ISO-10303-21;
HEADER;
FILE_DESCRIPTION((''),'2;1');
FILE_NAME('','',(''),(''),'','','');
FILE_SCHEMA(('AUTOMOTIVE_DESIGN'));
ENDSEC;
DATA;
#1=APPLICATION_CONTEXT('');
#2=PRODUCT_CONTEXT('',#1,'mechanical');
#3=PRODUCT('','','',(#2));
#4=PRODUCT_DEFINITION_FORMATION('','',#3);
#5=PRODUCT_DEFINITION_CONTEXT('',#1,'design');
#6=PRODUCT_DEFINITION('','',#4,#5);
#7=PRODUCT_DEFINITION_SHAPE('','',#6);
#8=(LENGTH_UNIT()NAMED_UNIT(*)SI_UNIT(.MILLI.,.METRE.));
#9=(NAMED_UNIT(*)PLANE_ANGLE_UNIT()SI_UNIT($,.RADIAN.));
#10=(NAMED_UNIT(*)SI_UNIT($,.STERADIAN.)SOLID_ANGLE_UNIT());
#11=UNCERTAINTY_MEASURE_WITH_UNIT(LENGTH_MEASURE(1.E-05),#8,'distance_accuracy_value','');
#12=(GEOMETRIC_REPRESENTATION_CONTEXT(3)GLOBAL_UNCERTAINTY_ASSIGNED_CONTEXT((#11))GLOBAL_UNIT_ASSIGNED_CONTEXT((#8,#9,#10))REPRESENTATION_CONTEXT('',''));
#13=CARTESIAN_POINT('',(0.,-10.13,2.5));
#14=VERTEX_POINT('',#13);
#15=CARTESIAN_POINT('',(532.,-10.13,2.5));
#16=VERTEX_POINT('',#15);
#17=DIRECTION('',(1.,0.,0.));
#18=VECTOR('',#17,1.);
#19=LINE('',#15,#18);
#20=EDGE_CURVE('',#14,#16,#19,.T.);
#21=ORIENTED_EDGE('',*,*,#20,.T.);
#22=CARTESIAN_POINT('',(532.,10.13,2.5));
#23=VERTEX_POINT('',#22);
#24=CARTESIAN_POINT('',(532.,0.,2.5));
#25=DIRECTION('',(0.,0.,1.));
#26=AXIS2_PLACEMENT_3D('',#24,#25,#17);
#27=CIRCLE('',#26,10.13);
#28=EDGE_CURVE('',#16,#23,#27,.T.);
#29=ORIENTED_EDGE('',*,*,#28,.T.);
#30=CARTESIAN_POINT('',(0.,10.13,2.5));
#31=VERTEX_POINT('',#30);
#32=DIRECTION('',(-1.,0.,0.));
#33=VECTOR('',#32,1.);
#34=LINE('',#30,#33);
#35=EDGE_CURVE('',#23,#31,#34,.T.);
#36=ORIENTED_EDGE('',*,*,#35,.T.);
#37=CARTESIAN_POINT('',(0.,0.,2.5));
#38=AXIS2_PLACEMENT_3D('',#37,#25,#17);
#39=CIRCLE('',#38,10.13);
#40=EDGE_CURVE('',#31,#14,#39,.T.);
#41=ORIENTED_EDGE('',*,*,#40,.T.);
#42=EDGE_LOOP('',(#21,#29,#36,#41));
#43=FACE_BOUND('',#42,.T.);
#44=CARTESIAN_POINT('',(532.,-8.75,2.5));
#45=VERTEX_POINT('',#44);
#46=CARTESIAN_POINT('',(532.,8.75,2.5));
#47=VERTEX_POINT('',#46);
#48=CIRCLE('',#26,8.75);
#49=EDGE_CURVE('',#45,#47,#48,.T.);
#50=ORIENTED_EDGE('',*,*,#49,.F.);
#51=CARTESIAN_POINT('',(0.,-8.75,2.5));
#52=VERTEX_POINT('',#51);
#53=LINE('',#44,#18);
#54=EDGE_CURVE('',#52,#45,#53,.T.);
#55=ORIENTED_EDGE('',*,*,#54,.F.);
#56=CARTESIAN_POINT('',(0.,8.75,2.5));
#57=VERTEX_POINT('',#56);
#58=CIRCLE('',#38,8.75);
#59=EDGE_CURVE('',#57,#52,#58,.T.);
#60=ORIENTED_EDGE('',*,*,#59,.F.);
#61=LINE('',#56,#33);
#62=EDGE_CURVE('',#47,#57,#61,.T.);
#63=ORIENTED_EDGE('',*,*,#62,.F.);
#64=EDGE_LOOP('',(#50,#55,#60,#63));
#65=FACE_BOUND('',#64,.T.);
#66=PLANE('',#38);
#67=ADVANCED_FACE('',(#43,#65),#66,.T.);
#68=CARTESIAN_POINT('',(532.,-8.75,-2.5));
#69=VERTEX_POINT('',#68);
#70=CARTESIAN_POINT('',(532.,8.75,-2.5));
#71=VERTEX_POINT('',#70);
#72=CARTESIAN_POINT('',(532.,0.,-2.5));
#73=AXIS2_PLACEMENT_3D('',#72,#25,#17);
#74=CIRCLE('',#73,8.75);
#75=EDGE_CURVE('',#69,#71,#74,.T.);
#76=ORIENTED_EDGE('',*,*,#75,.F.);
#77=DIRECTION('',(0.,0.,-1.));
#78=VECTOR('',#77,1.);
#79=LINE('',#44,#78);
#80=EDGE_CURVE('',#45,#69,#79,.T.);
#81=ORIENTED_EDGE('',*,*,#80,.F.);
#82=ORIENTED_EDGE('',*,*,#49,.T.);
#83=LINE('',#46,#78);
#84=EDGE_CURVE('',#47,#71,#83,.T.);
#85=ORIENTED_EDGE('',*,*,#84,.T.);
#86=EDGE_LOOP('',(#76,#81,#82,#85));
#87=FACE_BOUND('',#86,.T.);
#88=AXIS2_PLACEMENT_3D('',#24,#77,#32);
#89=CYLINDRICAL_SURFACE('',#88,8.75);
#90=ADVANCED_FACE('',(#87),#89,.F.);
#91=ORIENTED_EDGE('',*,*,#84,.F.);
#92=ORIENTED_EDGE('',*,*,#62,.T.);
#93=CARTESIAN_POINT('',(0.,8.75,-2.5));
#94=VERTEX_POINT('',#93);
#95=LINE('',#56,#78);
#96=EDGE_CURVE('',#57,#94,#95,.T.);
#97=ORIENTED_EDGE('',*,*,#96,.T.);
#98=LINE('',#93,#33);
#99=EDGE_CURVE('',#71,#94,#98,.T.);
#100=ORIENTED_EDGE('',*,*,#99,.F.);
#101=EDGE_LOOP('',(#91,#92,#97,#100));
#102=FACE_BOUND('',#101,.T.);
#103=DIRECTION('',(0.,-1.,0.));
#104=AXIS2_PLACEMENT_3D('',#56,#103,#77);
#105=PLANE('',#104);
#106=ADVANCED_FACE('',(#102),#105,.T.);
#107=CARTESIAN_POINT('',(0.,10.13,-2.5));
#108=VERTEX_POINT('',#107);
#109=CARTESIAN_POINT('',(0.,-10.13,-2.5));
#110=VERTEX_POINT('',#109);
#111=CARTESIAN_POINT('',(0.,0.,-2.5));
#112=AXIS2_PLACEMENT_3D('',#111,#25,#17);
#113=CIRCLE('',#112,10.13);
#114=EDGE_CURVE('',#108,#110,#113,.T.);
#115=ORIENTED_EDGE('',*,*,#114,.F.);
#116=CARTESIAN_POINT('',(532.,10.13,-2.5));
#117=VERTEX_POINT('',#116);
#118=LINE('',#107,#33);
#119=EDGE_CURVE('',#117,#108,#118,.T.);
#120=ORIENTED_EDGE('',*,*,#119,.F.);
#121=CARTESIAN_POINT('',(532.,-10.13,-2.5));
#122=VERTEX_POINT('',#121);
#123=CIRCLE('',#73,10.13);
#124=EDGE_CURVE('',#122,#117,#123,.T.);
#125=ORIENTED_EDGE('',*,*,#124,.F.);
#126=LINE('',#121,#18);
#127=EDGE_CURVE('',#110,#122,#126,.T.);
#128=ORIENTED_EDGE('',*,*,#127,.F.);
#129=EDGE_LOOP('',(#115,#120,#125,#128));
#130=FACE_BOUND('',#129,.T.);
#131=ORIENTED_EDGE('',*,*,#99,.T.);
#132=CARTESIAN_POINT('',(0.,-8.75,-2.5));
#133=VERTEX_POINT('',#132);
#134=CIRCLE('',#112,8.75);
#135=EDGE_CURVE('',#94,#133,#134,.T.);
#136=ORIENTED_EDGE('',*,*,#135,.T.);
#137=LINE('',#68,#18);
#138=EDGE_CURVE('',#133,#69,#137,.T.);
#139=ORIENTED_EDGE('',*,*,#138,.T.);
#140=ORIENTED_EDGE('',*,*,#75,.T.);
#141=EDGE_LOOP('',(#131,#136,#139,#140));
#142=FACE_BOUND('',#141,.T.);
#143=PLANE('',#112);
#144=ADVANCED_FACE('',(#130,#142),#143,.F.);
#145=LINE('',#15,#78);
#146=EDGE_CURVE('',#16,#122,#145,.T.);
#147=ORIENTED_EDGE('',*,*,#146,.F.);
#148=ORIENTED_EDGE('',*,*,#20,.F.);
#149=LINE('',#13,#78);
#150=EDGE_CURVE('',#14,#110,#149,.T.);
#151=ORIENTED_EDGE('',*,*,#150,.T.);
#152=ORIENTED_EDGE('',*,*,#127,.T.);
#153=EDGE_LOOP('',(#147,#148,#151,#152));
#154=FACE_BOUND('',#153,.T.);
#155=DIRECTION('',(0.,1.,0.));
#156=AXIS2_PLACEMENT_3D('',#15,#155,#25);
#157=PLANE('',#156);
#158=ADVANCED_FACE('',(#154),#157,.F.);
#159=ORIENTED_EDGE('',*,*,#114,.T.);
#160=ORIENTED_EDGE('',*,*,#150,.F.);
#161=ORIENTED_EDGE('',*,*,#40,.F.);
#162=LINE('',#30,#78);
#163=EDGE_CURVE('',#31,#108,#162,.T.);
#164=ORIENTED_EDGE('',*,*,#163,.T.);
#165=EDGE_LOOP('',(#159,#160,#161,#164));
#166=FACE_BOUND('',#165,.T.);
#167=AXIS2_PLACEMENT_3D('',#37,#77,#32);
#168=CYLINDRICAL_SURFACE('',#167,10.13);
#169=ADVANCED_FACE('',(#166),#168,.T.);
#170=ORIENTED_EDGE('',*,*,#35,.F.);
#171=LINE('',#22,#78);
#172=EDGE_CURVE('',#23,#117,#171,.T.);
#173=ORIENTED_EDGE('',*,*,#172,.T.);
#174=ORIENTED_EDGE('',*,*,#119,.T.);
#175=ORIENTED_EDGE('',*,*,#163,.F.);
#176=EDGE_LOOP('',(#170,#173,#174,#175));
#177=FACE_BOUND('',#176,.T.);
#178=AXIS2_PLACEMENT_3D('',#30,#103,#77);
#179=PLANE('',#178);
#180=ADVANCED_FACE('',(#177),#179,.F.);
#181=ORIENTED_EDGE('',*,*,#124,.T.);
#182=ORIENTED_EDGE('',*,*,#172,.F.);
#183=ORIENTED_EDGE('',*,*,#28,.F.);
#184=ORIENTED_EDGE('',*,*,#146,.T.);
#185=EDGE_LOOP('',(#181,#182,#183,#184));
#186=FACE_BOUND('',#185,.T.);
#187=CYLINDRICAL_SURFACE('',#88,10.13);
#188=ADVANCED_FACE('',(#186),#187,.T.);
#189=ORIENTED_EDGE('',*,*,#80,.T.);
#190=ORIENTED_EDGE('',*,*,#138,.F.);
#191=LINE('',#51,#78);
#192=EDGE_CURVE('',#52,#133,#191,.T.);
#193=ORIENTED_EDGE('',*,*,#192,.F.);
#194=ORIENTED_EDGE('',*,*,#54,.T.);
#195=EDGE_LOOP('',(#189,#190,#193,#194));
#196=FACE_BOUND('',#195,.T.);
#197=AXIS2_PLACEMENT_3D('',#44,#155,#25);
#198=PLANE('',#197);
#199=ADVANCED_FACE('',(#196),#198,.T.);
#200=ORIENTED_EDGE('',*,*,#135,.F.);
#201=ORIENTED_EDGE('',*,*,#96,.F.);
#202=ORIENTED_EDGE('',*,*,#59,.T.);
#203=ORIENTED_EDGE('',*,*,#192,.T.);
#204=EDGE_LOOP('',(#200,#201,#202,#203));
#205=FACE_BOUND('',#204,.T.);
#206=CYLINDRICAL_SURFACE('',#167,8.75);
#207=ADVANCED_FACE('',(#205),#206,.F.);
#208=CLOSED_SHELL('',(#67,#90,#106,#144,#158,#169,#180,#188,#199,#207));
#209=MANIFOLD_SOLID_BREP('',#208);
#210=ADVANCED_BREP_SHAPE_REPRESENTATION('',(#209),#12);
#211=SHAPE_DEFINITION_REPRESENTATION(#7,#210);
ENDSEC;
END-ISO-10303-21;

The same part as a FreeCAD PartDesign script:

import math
import FreeCAD as App
import Part
import Sketcher

V = App.Vector

doc = App.newDocument("Part")
params = doc.addObject("Spreadsheet::Sheet", "Params")
for row, (alias, value) in enumerate([
    ("sketch1_width", "532 mm"),
    ("sketch1_radius", "10.13 mm"),
    ("sketch1_radius2", "8.75 mm"),
    ("pad1_length", "5 mm"),
], start=1):
    params.set(f"A{row}", alias)
    params.set(f"B{row}", "=" + value)
    params.setAlias(f"B{row}", alias)

body = doc.addObject("PartDesign::Body", "Body")

sketch1 = body.newObject("Sketcher::SketchObject", "Sketch")
sketch1.AttachmentSupport = (doc.getObject("XY_Plane"), [""])
sketch1.MapMode = "FlatFace"
sketch1.addGeometry([
    Part.LineSegment(V(0, -10, 0), V(532, -10, 0)),
    Part.ArcOfCircle(Part.Circle(V(532, 0, 0), V(0, 0, 1), 10), math.radians(-90), math.radians(90)),
    Part.LineSegment(V(532, 10, 0), V(0, 10, 0)),
    Part.ArcOfCircle(Part.Circle(V(0, 0, 0), V(0, 0, 1), 10), math.radians(90), math.radians(270)),
    Part.LineSegment(V(532, -9, 0), V(0, -9, 0)),
    Part.ArcOfCircle(Part.Circle(V(0, 0, 0), V(0, 0, 1), 9), math.radians(90), math.radians(270)),
    Part.LineSegment(V(0, 9, 0), V(532, 9, 0)),
    Part.ArcOfCircle(Part.Circle(V(532, 0, 0), V(0, 0, 1), 9), math.radians(-90), math.radians(90)),
], False)
sketch1.addConstraint([
    Sketcher.Constraint("Tangent", 0, 2, 1, 1),
    Sketcher.Constraint("Tangent", 1, 2, 2, 1),
    Sketcher.Constraint("Tangent", 2, 2, 3, 1),
    Sketcher.Constraint("Tangent", 3, 2, 0, 1),
    Sketcher.Constraint("Tangent", 4, 2, 5, 2),
    Sketcher.Constraint("Tangent", 5, 1, 6, 1),
    Sketcher.Constraint("Tangent", 6, 2, 7, 2),
    Sketcher.Constraint("Tangent", 7, 1, 4, 1),
    Sketcher.Constraint("Horizontal", 0),
    Sketcher.Constraint("Horizontal", 2),
    Sketcher.Constraint("Horizontal", 4),
    Sketcher.Constraint("Horizontal", 6),
    Sketcher.Constraint("Coincident", 3, 3, -1, 1),
    Sketcher.Constraint("Coincident", 5, 3, -1, 1),
    Sketcher.Constraint("Vertical", 7, 3, 0, 2),
    Sketcher.Constraint("DistanceX", 0, 1, 0, 2, 532.0),
    Sketcher.Constraint("Radius", 1, 10.13),
    Sketcher.Constraint("Radius", 5, 8.75),
])
sketch1.setExpression("Constraints[15]", "Params.sketch1_width")
sketch1.setExpression("Constraints[16]", "Params.sketch1_radius")
sketch1.setExpression("Constraints[17]", "Params.sketch1_radius2")
pad1 = body.newObject("PartDesign::Pad", "Pad")
pad1.Profile = sketch1
pad1.setExpression("Length", "Params.pad1_length")
pad1.Midplane = True

doc.recompute()
